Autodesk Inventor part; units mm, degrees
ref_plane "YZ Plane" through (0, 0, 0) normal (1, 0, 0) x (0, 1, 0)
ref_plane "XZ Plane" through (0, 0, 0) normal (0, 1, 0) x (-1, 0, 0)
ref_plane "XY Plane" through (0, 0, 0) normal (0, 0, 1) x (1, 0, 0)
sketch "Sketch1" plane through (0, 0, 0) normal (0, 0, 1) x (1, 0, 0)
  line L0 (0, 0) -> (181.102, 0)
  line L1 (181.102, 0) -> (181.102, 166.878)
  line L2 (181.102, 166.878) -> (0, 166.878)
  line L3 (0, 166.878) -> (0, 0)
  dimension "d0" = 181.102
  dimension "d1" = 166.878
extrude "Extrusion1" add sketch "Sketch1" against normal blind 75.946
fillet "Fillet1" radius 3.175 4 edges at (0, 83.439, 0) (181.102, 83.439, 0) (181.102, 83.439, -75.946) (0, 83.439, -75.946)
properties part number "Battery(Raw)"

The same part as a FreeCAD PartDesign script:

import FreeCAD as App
import Part
import Sketcher
Q = App.Units.Quantity


def edges_at(feature, points):
    """Names of the edges that pass closest to the given points."""
    edges = feature.Shape.Edges
    near = lambda p: min(range(len(edges)), key=lambda i: edges[i].distToShape(Part.Vertex(*p))[0])
    return sorted({f"Edge{near(p) + 1}" for p in points})

doc = App.newDocument("Part")
body = doc.addObject("PartDesign::Body", "Body")

# Sketch on XY plane
sketch1 = body.newObject("Sketcher::SketchObject", "Sketch")
sketch1.AttachmentSupport = (doc.getObject("XY_Plane"), [""])
sketch1.MapMode = "FlatFace"
sketch1.addGeometry(Part.LineSegment(App.Vector(0, 167, 0), App.Vector(0, 0, 0)), False)
sketch1.addGeometry(Part.LineSegment(App.Vector(0, 0, 0), App.Vector(181, 0, 0)), False)
sketch1.addGeometry(Part.LineSegment(App.Vector(181, 0, 0), App.Vector(181, 167, 0)), False)
sketch1.addGeometry(Part.LineSegment(App.Vector(181, 167, 0), App.Vector(0, 167, 0)), False)
sketch1.addConstraint(Sketcher.Constraint("Coincident", 0, 2, 1, 1))
sketch1.addConstraint(Sketcher.Constraint("Coincident", 1, 2, 2, 1))
sketch1.addConstraint(Sketcher.Constraint("Coincident", 2, 2, 3, 1))
sketch1.addConstraint(Sketcher.Constraint("Coincident", 3, 2, 0, 1))
sketch1.addConstraint(Sketcher.Constraint("Vertical", 0))
sketch1.addConstraint(Sketcher.Constraint("Horizontal", 1))
sketch1.addConstraint(Sketcher.Constraint("Vertical", 2))
sketch1.addConstraint(Sketcher.Constraint("Horizontal", 3))
sketch1.addConstraint(Sketcher.Constraint("Coincident", 0, 2, -1, 1))
sketch1.addConstraint(Sketcher.Constraint("DistanceX", 1, 1, 1, 2, Q("7.13 in")))
sketch1.addConstraint(Sketcher.Constraint("DistanceY", 0, 2, 0, 1, Q("6.57 in")))
pad1 = body.newObject("PartDesign::Pad", "Pad")
pad1.Profile = sketch1
pad1.Length = Q("2.99 in")
pad1.Reversed = True
doc.recompute()

fillet = body.newObject("PartDesign::Fillet", "Fillet")
fillet.Base = (pad1, edges_at(pad1, [
    (0, 83.439, 0),
    (181.102, 83.439, 0),
    (181.102, 83.439, -75.946),
    (0, 83.439, -75.946),
]))
fillet.Radius = Q("0.125 in")

doc.recompute()
